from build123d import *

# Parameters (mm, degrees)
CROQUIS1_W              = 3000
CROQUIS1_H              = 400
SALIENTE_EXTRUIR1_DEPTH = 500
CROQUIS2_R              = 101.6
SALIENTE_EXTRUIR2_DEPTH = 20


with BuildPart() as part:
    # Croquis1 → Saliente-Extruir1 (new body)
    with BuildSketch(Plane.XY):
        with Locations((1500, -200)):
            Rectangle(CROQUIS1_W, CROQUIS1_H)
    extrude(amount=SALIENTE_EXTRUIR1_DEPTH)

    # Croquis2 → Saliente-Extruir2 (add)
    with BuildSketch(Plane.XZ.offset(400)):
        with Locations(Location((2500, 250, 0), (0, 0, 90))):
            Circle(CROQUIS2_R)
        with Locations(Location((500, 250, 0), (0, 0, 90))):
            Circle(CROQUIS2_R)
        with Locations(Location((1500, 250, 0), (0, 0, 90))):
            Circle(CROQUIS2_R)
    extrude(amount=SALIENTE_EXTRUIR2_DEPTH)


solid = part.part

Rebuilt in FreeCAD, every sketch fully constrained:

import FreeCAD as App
import Part
import Sketcher


def add_polygon(sketch, points):
    """Adds a closed chain of lines whose ends are joined by coincident constraints."""
    first, n = sketch.GeometryCount, len(points)
    for a, b in zip(points, points[1:] + points[:1]):
        sketch.addGeometry(Part.LineSegment(App.Vector(*a, 0), App.Vector(*b, 0)), False)
    for i in range(n):
        sketch.addConstraint(Sketcher.Constraint("Coincident", first + i, 2, first + (i + 1) % n, 1))

doc = App.newDocument("Part")
body = doc.addObject("PartDesign::Body", "Body")

sketch1 = body.newObject("Sketcher::SketchObject", "Sketch")
sketch1.AttachmentSupport = (doc.getObject("XY_Plane"), [""])
sketch1.MapMode = "FlatFace"
add_polygon(sketch1, [(0, 0), (0, -400), (3000, -400), (3000, 0)])
sketch1.addConstraint(Sketcher.Constraint("Vertical", 0))
sketch1.addConstraint(Sketcher.Constraint("Horizontal", 1))
sketch1.addConstraint(Sketcher.Constraint("Vertical", 2))
sketch1.addConstraint(Sketcher.Constraint("Horizontal", 3))
sketch1.addConstraint(Sketcher.Constraint("Coincident", 3, 2, -1, 1))
sketch1.addConstraint(Sketcher.Constraint("DistanceX", 1, 1, 1, 2, 3000.0))
sketch1.addConstraint(Sketcher.Constraint("DistanceY", 0, 2, 0, 1, 400.0))
pad1 = body.newObject("PartDesign::Pad", "Pad")
pad1.Profile = sketch1
pad1.Length = 500

sketch2 = body.newObject("Sketcher::SketchObject", "Sketch001")
sketch2.AttachmentSupport = (doc.getObject("XZ_Plane"), [""])
sketch2.MapMode = "FlatFace"
sketch2.AttachmentOffset = App.Placement(App.Vector(0, 0, 400), App.Rotation())
sketch2.addGeometry(Part.Circle(App.Vector(2500, 250, 0), App.Vector(0, 0, 1), 101.6), False)
sketch2.addGeometry(Part.Circle(App.Vector(500, 250, 0), App.Vector(0, 0, 1), 101.6), False)
sketch2.addGeometry(Part.Circle(App.Vector(1500, 250, 0), App.Vector(0, 0, 1), 101.6), False)
sketch2.addConstraint(Sketcher.Constraint("Equal", 0, 1))
sketch2.addConstraint(Sketcher.Constraint("Equal", 1, 2))
sketch2.addConstraint(Sketcher.Constraint("Horizontal", 0, 3, 1, 3))
sketch2.addConstraint(Sketcher.Constraint("Horizontal", 1, 3, 2, 3))
sketch2.addConstraint(Sketcher.Constraint("Diameter", 0, 203.2))
sketch2.addConstraint(Sketcher.Constraint("DistanceX", -1, 1, 0, 3, 2500.0))
sketch2.addConstraint(Sketcher.Constraint("DistanceY", -1, 1, 0, 3, 250.0))
sketch2.addConstraint(Sketcher.Constraint("DistanceX", -1, 1, 1, 3, 500.0))
sketch2.addConstraint(Sketcher.Constraint("DistanceX", -1, 1, 2, 3, 1500.0))
pad2 = body.newObject("PartDesign::Pad", "Pad001")
pad2.Profile = sketch2
pad2.Length = 20

doc.recompute()
